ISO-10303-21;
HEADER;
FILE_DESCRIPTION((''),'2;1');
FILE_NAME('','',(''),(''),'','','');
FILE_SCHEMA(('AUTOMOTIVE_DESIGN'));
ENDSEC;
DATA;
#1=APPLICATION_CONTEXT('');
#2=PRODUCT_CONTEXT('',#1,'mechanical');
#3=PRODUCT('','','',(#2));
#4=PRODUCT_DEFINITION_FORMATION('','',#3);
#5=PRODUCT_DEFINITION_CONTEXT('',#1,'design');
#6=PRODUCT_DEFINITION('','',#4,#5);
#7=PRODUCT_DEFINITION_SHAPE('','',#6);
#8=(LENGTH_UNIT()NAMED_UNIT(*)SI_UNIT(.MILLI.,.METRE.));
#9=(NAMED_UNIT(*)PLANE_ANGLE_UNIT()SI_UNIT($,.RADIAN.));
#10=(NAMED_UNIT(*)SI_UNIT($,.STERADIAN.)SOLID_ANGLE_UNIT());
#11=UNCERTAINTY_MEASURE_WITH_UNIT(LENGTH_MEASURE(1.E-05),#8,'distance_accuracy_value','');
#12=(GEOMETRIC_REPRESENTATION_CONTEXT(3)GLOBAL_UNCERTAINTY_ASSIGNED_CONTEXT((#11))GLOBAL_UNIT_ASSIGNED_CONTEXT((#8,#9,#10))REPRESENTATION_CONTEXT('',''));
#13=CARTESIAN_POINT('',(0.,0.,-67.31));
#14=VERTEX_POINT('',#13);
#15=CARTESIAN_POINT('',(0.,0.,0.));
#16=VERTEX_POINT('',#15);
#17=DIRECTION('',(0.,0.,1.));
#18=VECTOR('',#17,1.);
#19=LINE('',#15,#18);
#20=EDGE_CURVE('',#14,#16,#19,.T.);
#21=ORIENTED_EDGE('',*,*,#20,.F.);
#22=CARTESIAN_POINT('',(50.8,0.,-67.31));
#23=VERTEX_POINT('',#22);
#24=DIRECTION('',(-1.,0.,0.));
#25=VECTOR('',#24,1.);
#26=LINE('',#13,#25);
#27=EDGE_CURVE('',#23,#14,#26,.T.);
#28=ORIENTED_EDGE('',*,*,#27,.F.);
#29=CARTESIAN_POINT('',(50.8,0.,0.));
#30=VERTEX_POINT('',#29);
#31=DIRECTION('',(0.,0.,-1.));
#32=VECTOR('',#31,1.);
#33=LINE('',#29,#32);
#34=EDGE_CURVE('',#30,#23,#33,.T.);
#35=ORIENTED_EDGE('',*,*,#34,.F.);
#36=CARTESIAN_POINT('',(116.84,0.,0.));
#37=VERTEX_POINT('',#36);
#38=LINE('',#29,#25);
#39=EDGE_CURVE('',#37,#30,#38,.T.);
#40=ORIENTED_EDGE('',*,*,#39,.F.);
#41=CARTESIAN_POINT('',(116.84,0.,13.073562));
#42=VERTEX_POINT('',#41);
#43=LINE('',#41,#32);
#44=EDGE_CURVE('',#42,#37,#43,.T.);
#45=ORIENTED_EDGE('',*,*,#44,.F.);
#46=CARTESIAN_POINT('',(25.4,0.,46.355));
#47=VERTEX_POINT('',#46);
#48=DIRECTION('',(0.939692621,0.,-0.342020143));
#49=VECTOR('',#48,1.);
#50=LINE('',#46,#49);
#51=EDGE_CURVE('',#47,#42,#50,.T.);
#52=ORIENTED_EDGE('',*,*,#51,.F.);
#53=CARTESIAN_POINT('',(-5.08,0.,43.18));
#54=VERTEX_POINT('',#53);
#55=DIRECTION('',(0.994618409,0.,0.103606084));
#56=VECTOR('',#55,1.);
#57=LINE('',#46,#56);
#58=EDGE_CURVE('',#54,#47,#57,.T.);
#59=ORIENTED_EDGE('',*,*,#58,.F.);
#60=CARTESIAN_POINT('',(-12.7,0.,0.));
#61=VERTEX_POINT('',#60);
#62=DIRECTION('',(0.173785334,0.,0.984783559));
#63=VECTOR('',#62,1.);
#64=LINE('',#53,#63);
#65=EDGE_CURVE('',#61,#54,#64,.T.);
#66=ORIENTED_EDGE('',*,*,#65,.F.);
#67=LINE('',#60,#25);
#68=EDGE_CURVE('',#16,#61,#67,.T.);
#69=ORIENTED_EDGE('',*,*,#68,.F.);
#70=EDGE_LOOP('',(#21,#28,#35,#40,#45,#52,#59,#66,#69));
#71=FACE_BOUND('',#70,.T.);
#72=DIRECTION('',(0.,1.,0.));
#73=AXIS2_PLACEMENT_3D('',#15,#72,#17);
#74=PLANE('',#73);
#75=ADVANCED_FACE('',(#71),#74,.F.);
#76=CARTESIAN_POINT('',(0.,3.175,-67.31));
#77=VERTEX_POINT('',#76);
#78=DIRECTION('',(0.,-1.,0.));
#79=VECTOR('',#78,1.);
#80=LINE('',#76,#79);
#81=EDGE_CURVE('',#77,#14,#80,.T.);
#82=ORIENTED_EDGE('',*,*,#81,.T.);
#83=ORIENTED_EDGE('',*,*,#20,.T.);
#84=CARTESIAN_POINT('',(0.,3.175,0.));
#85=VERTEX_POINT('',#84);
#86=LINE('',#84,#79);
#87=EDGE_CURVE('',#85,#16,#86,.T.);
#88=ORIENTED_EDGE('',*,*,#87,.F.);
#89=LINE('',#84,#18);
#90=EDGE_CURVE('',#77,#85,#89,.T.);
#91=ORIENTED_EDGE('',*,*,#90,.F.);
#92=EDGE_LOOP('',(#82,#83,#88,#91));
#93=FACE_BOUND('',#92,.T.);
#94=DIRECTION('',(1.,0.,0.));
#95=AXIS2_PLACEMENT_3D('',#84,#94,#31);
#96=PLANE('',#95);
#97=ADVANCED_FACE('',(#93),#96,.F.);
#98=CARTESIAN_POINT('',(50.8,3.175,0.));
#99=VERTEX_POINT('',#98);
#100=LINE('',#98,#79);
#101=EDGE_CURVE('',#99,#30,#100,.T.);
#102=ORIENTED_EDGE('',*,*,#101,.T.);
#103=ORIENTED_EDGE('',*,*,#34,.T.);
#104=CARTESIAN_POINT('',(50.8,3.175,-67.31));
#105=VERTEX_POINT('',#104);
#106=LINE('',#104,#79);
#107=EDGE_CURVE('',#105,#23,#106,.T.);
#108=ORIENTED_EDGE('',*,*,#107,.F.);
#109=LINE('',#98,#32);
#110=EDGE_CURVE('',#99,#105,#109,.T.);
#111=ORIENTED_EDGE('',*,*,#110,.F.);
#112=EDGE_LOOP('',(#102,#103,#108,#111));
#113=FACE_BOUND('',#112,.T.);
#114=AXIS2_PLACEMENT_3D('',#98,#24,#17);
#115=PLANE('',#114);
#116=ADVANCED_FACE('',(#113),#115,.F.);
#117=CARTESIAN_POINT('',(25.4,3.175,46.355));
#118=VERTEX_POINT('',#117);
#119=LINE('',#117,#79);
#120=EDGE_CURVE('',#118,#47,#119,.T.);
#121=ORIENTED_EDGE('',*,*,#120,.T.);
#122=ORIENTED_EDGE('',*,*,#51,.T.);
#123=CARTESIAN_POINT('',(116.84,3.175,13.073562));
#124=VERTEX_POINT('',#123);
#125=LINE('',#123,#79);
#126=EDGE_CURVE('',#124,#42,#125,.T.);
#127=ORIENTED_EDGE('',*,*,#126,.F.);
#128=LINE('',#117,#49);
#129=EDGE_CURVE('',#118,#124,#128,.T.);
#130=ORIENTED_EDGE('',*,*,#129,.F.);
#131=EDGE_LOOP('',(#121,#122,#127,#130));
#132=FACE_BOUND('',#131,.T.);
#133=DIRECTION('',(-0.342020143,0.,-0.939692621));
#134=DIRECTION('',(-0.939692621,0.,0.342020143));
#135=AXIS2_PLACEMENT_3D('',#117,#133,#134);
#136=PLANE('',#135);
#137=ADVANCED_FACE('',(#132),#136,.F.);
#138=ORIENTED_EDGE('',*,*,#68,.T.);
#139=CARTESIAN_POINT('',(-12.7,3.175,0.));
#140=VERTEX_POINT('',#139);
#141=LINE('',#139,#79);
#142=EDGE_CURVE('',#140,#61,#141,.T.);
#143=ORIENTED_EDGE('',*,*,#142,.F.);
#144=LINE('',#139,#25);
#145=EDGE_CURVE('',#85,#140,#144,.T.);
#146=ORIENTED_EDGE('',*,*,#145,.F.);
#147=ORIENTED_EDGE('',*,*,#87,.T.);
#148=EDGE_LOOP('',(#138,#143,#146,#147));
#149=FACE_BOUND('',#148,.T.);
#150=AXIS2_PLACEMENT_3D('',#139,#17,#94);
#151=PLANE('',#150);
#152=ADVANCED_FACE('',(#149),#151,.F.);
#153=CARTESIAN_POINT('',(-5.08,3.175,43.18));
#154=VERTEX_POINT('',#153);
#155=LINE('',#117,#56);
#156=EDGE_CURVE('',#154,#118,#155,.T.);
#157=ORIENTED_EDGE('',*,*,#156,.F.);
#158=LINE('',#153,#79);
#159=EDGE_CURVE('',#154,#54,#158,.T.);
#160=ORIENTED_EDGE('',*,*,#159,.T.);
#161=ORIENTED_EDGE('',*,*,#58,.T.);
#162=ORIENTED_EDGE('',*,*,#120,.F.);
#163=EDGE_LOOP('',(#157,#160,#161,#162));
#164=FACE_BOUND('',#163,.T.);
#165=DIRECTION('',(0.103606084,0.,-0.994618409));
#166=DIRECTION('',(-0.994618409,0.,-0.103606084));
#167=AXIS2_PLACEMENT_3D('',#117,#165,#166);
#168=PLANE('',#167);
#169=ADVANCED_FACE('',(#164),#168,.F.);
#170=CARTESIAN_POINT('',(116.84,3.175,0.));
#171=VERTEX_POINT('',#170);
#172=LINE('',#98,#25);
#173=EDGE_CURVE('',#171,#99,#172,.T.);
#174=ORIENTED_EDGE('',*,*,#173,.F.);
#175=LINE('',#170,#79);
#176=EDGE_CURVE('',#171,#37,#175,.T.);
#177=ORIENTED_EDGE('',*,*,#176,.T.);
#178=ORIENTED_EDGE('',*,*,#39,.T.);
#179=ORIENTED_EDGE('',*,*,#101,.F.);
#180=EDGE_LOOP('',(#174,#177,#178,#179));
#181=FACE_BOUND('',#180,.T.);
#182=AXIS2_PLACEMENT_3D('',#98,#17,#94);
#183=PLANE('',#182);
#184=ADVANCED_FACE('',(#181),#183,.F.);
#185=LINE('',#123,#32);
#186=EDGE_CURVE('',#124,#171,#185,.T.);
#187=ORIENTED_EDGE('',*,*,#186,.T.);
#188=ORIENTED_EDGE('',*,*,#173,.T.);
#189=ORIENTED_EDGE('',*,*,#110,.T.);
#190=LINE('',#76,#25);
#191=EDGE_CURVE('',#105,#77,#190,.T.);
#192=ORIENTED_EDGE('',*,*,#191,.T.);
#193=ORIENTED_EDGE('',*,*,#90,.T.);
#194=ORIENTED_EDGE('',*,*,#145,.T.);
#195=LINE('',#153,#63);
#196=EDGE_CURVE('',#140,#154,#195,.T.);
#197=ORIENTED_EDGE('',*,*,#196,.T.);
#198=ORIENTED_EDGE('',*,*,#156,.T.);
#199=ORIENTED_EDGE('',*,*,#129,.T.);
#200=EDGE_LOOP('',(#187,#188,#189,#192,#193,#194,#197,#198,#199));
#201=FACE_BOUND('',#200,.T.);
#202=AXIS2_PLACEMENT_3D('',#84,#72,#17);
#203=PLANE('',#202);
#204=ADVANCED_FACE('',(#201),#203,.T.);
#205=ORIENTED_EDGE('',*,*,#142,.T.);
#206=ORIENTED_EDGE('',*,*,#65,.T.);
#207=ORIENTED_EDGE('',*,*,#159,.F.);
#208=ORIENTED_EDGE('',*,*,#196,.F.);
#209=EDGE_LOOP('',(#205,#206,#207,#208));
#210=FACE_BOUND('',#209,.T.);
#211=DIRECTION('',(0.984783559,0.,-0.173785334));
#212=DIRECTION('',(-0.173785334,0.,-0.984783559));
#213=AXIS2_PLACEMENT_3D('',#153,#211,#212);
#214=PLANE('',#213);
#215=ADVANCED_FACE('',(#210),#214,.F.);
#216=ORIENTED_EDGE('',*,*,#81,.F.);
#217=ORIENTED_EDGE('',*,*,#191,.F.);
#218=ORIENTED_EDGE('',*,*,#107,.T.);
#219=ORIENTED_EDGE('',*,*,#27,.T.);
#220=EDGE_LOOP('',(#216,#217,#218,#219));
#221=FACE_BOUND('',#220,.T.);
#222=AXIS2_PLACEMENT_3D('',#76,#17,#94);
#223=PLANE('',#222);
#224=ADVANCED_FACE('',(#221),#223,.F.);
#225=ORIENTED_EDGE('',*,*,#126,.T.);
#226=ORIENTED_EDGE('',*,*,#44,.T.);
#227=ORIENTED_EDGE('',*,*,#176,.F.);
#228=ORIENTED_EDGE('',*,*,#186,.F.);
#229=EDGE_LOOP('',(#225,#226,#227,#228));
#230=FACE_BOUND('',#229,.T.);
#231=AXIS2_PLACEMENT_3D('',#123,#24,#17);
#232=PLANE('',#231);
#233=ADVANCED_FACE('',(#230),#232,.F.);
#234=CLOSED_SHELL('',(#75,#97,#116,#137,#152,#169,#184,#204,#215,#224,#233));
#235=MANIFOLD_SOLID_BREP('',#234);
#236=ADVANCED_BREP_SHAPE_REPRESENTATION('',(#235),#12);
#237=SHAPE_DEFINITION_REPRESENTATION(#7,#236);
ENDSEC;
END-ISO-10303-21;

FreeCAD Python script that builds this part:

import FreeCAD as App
import Part
import Sketcher
Q = App.Units.Quantity


def add_polygon(sketch, points):
    """Adds a closed chain of lines whose ends are joined by coincident constraints."""
    first, n = sketch.GeometryCount, len(points)
    for a, b in zip(points, points[1:] + points[:1]):
        sketch.addGeometry(Part.LineSegment(App.Vector(*a, 0), App.Vector(*b, 0)), False)
    for i in range(n):
        sketch.addConstraint(Sketcher.Constraint("Coincident", first + i, 2, first + (i + 1) % n, 1))

doc = App.newDocument("Part")
params = doc.addObject("Spreadsheet::Sheet", "Params")
for row, (alias, value) in enumerate([
    ("sketch1_width", "2 in"),
    ("sketch1_width2", "2.6 in"),
    ("sketch1_width3", "0.5 in"),
    ("sketch1_height", "2.65 in"),
    ("pad1_length", "0.125 in"),
], start=1):
    params.set(f"A{row}", alias)
    params.set(f"B{row}", "=" + value)
    params.setAlias(f"B{row}", alias)

body = doc.addObject("PartDesign::Body", "Body")

# Sketch on XZ plane
sketch1 = body.newObject("Sketcher::SketchObject", "Sketch")
sketch1.AttachmentSupport = (doc.getObject("XZ_Plane"), [""])
sketch1.MapMode = "FlatFace"
add_polygon(sketch1, [(117, 0), (51, 0), (51, -67), (0, -67), (0, 0), (-13, 0), (-5, 43), (25, 46), (117, 13)])  # lines 0-8
sketch1.addConstraint([
    Sketcher.Constraint("Horizontal", 0),
    Sketcher.Constraint("Vertical", 1),
    Sketcher.Constraint("Horizontal", 2),
    Sketcher.Constraint("Vertical", 3),
    Sketcher.Constraint("Horizontal", 4),
    Sketcher.Constraint("Vertical", 8),
    Sketcher.Constraint("Coincident", 3, 2, -1, 1),
    Sketcher.Constraint("PointOnObject", 0, 2, -1),
    Sketcher.Constraint("DistanceX", 2, 2, 2, 1, Q("2 in")),
    Sketcher.Constraint("DistanceX", 0, 2, 0, 1, Q("2.6 in")),
    Sketcher.Constraint("DistanceX", 4, 2, 4, 1, Q("0.5 in")),
    Sketcher.Constraint("DistanceX", -1, 1, 6, 2, Q("1 in")),
    Sketcher.Constraint("Angle", 7, Q("-20 deg")),
    Sketcher.Constraint("DistanceY", 1, 2, 1, 1, Q("2.65 in")),
    Sketcher.Constraint("DistanceX", 5, 2, -1, 1, Q("0.2 in")),
    Sketcher.Constraint("DistanceY", -1, 1, 5, 2, Q("1.7 in")),
    Sketcher.Constraint("DistanceY", -1, 1, 6, 2, Q("1.825 in")),
])
sketch1.setExpression("Constraints[17]", "Params.sketch1_width")
sketch1.setExpression("Constraints[18]", "Params.sketch1_width2")
sketch1.setExpression("Constraints[19]", "Params.sketch1_width3")
sketch1.setExpression("Constraints[22]", "Params.sketch1_height")
pad1 = body.newObject("PartDesign::Pad", "Pad")
pad1.Profile = sketch1
pad1.setExpression("Length", "Params.pad1_length")
pad1.Reversed = True

doc.recompute()
